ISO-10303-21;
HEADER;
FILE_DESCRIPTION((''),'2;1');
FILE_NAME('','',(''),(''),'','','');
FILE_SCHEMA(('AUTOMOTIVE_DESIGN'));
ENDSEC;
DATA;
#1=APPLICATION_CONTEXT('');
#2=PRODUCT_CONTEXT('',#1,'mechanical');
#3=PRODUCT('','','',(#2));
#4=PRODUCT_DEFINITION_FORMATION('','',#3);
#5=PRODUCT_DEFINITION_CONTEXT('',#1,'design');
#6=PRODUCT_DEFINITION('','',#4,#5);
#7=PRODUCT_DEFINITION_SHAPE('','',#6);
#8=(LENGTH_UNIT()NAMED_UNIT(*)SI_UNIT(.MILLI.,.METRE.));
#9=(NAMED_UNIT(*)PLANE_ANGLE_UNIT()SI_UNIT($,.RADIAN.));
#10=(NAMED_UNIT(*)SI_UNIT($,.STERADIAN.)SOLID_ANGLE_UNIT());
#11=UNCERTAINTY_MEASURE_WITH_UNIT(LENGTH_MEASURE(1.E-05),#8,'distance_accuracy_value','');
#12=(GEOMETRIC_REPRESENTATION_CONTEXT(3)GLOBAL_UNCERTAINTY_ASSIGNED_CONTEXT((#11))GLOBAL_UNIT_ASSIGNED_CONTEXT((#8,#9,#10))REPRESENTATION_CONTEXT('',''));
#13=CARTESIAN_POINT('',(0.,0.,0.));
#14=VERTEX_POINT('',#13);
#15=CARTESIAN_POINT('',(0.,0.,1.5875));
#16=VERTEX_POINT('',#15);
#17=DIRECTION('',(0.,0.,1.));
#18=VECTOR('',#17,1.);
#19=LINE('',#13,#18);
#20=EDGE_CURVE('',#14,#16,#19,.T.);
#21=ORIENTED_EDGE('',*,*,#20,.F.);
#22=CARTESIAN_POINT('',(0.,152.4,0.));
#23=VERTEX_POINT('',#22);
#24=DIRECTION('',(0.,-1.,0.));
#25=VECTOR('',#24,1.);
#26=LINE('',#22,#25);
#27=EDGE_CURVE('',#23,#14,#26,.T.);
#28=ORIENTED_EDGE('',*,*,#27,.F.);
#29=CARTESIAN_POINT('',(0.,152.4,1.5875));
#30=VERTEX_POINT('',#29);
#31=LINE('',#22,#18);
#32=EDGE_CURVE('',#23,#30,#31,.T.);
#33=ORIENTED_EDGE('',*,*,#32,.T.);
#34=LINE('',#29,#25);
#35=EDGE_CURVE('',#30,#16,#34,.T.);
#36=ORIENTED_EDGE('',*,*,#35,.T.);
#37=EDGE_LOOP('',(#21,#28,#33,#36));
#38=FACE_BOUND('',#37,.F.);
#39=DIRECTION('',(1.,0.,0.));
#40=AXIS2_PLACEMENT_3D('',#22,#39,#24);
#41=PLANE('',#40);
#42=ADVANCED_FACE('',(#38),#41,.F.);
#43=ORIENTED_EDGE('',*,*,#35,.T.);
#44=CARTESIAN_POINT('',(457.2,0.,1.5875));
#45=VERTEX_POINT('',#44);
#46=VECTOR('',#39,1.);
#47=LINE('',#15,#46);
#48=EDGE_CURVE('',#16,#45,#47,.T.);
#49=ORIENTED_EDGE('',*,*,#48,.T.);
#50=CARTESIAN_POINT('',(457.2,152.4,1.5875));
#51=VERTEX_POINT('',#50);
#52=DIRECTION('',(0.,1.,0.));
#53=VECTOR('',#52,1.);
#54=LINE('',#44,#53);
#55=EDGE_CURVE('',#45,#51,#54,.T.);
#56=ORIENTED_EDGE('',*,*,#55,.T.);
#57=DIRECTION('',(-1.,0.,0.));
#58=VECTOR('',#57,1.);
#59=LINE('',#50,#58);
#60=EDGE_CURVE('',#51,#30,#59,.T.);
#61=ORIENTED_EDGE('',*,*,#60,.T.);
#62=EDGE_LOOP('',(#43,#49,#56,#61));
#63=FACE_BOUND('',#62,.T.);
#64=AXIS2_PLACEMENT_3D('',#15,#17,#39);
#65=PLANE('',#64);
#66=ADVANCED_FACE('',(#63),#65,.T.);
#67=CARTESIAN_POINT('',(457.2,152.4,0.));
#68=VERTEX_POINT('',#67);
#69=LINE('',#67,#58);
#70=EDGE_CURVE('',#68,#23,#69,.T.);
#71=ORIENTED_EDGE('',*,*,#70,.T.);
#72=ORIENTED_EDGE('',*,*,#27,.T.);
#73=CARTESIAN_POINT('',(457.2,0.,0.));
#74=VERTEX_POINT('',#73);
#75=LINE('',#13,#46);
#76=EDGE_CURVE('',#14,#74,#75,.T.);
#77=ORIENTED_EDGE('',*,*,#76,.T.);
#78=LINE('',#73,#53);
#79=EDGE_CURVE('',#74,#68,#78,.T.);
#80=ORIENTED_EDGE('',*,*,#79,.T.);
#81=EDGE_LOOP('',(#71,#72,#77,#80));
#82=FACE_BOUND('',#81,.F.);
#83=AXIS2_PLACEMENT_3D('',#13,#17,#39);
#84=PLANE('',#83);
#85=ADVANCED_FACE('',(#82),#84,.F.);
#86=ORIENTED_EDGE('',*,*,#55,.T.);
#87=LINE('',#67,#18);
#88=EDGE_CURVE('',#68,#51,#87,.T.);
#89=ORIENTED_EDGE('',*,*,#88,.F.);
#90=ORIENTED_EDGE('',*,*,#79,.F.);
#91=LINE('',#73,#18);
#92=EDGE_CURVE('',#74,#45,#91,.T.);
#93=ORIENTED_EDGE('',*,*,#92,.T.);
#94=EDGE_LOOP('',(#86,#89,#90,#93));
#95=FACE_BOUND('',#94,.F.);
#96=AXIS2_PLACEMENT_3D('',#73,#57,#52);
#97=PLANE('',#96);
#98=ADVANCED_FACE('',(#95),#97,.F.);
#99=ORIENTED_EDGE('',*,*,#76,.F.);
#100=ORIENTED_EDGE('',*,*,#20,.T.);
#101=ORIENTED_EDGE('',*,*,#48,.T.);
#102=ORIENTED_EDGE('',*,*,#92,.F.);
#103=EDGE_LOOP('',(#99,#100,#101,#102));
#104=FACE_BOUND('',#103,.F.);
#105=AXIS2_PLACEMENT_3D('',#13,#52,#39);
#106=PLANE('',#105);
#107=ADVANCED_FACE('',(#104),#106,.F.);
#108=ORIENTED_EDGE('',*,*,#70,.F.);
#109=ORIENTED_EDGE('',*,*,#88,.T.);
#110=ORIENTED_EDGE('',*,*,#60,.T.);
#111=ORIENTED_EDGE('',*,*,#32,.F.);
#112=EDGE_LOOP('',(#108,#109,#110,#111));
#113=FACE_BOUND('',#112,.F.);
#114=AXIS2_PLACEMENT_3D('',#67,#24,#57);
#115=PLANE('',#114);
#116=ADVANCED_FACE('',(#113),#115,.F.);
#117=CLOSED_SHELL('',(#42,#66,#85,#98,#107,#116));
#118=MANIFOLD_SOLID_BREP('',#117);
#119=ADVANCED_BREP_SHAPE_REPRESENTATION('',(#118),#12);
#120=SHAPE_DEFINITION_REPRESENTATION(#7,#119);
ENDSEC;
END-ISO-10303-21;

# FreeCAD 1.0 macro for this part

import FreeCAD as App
import Part
import Sketcher

V = App.Vector
Q = App.Units.Quantity

doc = App.newDocument("Part")
body = doc.addObject("PartDesign::Body", "Body")

# Sketch on XY plane
sketch1 = doc.addObject("Sketcher::SketchObject", "Sketch")
body.addObject(sketch1)
sketch1.AttachmentSupport = (doc.XY_Plane, [""])
sketch1.MapMode = "FlatFace"
sketch1.addGeometry([
    Part.LineSegment(V(0, 152, 0), V(0, 0, 0)),
    Part.LineSegment(V(0, 0, 0), V(457, 0, 0)),
    Part.LineSegment(V(457, 0, 0), V(457, 152, 0)),
    Part.LineSegment(V(457, 152, 0), V(0, 152, 0)),
], False)
sketch1.addConstraint([
    Sketcher.Constraint("Coincident", 0, 2, 1, 1),
    Sketcher.Constraint("Coincident", 1, 2, 2, 1),
    Sketcher.Constraint("Coincident", 2, 2, 3, 1),
    Sketcher.Constraint("Coincident", 3, 2, 0, 1),
    Sketcher.Constraint("Vertical", 0),
    Sketcher.Constraint("Horizontal", 1),
    Sketcher.Constraint("Vertical", 2),
    Sketcher.Constraint("Horizontal", 3),
    Sketcher.Constraint("Coincident", 0, 2, -1, 1),
    Sketcher.Constraint("DistanceX", 1, 1, 1, 2, Q("18 in")),
    Sketcher.Constraint("DistanceY", 0, 2, 0, 1, Q("6 in")),
])
pad1 = doc.addObject("PartDesign::Pad", "Pad")
body.addObject(pad1)
pad1.Profile = sketch1
pad1.Length = Q("0.0625 in")

doc.recompute()
